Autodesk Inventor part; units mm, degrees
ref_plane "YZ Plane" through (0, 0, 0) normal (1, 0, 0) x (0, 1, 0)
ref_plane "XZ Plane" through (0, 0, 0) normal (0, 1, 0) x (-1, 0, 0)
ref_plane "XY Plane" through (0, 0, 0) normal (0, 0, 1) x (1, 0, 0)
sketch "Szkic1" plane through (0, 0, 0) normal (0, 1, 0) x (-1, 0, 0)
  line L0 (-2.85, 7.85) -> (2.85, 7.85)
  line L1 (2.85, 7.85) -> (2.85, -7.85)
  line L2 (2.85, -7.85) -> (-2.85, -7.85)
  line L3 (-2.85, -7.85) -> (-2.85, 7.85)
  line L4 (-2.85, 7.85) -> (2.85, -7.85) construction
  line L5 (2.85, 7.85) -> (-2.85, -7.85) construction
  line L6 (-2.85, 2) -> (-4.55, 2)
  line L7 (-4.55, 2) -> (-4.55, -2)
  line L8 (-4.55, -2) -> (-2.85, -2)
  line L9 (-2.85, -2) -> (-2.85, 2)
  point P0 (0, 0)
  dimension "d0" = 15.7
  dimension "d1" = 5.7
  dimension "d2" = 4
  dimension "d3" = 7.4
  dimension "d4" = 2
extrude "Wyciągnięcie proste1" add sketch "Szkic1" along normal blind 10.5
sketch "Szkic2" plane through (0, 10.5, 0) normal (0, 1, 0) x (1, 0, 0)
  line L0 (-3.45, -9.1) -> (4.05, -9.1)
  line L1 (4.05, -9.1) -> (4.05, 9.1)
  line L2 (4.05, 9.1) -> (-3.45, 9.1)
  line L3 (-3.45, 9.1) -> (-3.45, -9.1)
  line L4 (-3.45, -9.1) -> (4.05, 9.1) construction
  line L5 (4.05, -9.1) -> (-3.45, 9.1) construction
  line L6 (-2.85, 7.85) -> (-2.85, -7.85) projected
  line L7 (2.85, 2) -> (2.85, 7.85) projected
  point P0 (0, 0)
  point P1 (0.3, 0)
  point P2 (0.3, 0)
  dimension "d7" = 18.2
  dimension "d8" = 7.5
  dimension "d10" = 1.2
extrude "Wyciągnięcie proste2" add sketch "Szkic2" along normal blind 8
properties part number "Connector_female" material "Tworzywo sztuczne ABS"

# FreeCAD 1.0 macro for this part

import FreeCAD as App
import Part
import Sketcher
from FreeCAD import Vector


def add_polygon(sketch, points):
    """Adds a closed chain of lines whose ends are joined by coincident constraints."""
    first, n = sketch.GeometryCount, len(points)
    for a, b in zip(points, points[1:] + points[:1]):
        sketch.addGeometry(Part.LineSegment(App.Vector(*a, 0), App.Vector(*b, 0)), False)
    for i in range(n):
        sketch.addConstraint(Sketcher.Constraint("Coincident", first + i, 2, first + (i + 1) % n, 1))

doc = App.newDocument("Part")
body = doc.addObject("PartDesign::Body", "Body")

# Sketch on XZ plane
sketch1 = doc.addObject("Sketcher::SketchObject", "Sketch")
body.addObject(sketch1)
sketch1.AttachmentSupport = (doc.XZ_Plane, [""])
sketch1.MapMode = "FlatFace"
add_polygon(sketch1, [(-2.9, 7.8), (2.9, 7.8), (2.9, 2), (4.5, 2), (4.5, -2), (2.9, -2), (2.9, -7.8), (-2.9, -7.8)])  # lines 0-7
sketch1.addConstraint(Sketcher.Constraint("Horizontal", 0))
sketch1.addConstraint(Sketcher.Constraint("Vertical", 1))
sketch1.addConstraint(Sketcher.Constraint("Horizontal", 2))
sketch1.addConstraint(Sketcher.Constraint("Vertical", 3))
sketch1.addConstraint(Sketcher.Constraint("Horizontal", 4))
sketch1.addConstraint(Sketcher.Constraint("Vertical", 5))
sketch1.addConstraint(Sketcher.Constraint("Horizontal", 6))
sketch1.addConstraint(Sketcher.Constraint("Vertical", 7))
sketch1.addConstraint(Sketcher.Constraint("Symmetric", 0, 2, 6, 2, -1, 1))
sketch1.addConstraint(Sketcher.Constraint("Symmetric", 1, 2, 4, 2, -1))
sketch1.addConstraint(Sketcher.Constraint("DistanceY", 3, 2, 3, 1, 4.0))
sketch1.addConstraint(Sketcher.Constraint("DistanceX", 0, 1, 0, 2, 5.7))
sketch1.addConstraint(Sketcher.Constraint("DistanceY", 7, 1, 7, 2, 15.7))
sketch1.addConstraint(Sketcher.Constraint("DistanceX", 6, 2, 3, 2, 7.4))
pad1 = doc.addObject("PartDesign::Pad", "Pad")
body.addObject(pad1)
pad1.Profile = sketch1
pad1.Length = 10.5
pad1.Reversed = True

# Sketch on XZ plane
sketch2 = doc.addObject("Sketcher::SketchObject", "Sketch001")
body.addObject(sketch2)
sketch2.AttachmentSupport = (doc.XZ_Plane, [""])
sketch2.MapMode = "FlatFace"
sketch2.AttachmentOffset = App.Placement(Vector(0, 0, -10.5), App.Rotation())
add_polygon(sketch2, [(-3, -9), (-3, 9), (4, 9), (4, -9)])  # lines 0-3
sketch2.addConstraint(Sketcher.Constraint("Vertical", 0))
sketch2.addConstraint(Sketcher.Constraint("Horizontal", 1))
sketch2.addConstraint(Sketcher.Constraint("Vertical", 2))
sketch2.addConstraint(Sketcher.Constraint("Horizontal", 3))
sketch2.addConstraint(Sketcher.Constraint("DistanceX", 1, 1, 1, 2, 7.5))
sketch2.addConstraint(Sketcher.Constraint("DistanceY", 0, 1, 0, 2, 18.2))
sketch2.addConstraint(Sketcher.Constraint("DistanceY", -1, 1, 0, 2, 9.1))
sketch2.addConstraint(Sketcher.Constraint("DistanceX", 0, 2, -1, 1, 3.45))
pad2 = doc.addObject("PartDesign::Pad", "Pad001")
body.addObject(pad2)
pad2.Profile = sketch2
pad2.Length = 8
pad2.Reversed = True

doc.recompute()
